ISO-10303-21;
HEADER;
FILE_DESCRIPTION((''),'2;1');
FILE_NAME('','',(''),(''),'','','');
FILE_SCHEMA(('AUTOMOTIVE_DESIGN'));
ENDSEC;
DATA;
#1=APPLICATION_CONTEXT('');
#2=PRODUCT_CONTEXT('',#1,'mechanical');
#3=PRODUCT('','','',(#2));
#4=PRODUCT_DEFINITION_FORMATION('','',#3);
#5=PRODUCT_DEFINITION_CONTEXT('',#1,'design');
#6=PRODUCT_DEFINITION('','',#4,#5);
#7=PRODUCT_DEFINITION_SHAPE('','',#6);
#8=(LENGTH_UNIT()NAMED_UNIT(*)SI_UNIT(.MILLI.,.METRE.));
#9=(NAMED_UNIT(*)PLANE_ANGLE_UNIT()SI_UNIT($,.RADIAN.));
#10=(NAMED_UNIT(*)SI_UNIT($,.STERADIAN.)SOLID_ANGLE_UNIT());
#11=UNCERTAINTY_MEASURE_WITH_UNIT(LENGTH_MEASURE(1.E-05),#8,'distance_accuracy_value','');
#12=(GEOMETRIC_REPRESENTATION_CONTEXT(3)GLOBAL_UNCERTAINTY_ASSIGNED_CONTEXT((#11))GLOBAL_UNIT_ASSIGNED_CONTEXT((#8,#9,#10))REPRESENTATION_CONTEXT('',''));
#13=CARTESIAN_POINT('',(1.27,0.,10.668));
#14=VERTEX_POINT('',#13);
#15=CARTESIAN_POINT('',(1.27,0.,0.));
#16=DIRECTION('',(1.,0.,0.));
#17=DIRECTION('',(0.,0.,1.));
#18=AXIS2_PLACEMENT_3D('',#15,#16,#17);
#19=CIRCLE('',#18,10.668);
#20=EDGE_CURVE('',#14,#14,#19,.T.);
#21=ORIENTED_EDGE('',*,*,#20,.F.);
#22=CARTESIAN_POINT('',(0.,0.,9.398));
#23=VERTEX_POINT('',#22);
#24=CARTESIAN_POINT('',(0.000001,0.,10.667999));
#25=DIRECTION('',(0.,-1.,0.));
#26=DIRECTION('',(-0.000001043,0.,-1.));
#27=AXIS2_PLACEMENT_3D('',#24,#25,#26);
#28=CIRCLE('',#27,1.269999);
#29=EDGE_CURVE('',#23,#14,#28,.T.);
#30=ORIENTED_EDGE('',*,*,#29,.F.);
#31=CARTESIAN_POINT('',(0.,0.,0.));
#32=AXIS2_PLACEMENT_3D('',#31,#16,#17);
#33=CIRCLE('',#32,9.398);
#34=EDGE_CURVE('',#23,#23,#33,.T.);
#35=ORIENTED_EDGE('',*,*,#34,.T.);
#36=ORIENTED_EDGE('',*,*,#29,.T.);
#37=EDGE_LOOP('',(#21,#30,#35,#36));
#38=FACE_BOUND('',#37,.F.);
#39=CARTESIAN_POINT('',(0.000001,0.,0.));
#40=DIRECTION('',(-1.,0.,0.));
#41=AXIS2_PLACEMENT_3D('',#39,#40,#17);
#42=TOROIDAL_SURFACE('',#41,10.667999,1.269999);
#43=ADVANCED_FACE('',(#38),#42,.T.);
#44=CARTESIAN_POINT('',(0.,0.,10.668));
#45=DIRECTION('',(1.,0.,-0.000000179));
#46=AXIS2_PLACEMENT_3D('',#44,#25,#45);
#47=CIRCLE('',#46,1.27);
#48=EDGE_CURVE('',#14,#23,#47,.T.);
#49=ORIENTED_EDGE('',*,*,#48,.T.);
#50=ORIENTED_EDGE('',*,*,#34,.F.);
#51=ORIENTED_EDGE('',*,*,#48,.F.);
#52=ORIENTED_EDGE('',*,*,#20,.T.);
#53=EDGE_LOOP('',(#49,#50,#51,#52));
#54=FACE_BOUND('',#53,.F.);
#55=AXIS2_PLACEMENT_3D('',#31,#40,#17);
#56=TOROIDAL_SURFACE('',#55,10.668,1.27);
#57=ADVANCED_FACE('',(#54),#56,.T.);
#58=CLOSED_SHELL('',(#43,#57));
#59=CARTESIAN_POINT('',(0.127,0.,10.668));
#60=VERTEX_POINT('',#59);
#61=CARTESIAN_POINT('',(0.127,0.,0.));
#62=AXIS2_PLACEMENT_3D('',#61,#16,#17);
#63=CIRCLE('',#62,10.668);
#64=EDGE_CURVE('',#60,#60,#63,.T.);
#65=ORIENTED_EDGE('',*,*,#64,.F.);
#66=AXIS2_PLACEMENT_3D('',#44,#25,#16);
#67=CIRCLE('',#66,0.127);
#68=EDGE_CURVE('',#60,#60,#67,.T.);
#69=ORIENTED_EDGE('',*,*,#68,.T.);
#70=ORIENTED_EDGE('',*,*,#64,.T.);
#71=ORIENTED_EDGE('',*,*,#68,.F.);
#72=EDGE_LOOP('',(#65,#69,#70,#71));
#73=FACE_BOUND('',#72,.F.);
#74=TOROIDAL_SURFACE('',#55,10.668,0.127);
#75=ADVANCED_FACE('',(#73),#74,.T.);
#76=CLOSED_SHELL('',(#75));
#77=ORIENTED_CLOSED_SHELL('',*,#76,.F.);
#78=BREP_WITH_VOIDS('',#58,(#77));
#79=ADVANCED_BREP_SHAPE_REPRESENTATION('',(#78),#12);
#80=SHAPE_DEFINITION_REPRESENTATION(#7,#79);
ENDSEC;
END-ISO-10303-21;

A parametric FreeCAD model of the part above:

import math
import FreeCAD as App
import Part
import Sketcher
Q = App.Units.Quantity

doc = App.newDocument("Part")
body = doc.addObject("PartDesign::Body", "Body")

# Sketch on XZ plane
sketch1 = body.newObject("Sketcher::SketchObject", "Sketch")
sketch1.AttachmentSupport = (doc.getObject("XZ_Plane"), [""])
sketch1.MapMode = "FlatFace"
sketch1.addGeometry(Part.ArcOfCircle(Part.Circle(App.Vector(0, 10.67, 0), App.Vector(0, 0, 1), 1.27), math.radians(-90), math.radians(0)), False)
sketch1.addGeometry(Part.ArcOfCircle(Part.Circle(App.Vector(0, 10.67, 0), App.Vector(0, 0, 1), 1.27), math.radians(0), math.radians(270)), False)
sketch1.addGeometry(Part.Circle(App.Vector(0, 10.67, 0), App.Vector(0, 0, 1), 0.13), False)
sketch1.addConstraint(Sketcher.Constraint("Tangent", 0, 1, 1, 2))
sketch1.addConstraint(Sketcher.Constraint("Coincident", 1, 1, 0, 2))
sketch1.addConstraint(Sketcher.Constraint("Coincident", 2, 3, 0, 3))
sketch1.addConstraint(Sketcher.Constraint("PointOnObject", 0, 3, -2))
sketch1.addConstraint(Sketcher.Constraint("PointOnObject", 0, 1, -2))
sketch1.addConstraint(Sketcher.Constraint("Horizontal", 2, 3, 1, 1))
sketch1.addConstraint(Sketcher.Constraint("Diameter", 2, Q("0.01 in")))
sketch1.addConstraint(Sketcher.Constraint("Radius", 0, Q("0.0499999 in")))
sketch1.addConstraint(Sketcher.Constraint("DistanceY", -1, 1, 0, 3, Q("0.4199999 in")))
revolution = body.newObject("PartDesign::Revolution", "Revolution")
revolution.Profile = sketch1
revolution.ReferenceAxis = (sketch1, ["H_Axis"])
revolution.Angle = 360

doc.recompute()
